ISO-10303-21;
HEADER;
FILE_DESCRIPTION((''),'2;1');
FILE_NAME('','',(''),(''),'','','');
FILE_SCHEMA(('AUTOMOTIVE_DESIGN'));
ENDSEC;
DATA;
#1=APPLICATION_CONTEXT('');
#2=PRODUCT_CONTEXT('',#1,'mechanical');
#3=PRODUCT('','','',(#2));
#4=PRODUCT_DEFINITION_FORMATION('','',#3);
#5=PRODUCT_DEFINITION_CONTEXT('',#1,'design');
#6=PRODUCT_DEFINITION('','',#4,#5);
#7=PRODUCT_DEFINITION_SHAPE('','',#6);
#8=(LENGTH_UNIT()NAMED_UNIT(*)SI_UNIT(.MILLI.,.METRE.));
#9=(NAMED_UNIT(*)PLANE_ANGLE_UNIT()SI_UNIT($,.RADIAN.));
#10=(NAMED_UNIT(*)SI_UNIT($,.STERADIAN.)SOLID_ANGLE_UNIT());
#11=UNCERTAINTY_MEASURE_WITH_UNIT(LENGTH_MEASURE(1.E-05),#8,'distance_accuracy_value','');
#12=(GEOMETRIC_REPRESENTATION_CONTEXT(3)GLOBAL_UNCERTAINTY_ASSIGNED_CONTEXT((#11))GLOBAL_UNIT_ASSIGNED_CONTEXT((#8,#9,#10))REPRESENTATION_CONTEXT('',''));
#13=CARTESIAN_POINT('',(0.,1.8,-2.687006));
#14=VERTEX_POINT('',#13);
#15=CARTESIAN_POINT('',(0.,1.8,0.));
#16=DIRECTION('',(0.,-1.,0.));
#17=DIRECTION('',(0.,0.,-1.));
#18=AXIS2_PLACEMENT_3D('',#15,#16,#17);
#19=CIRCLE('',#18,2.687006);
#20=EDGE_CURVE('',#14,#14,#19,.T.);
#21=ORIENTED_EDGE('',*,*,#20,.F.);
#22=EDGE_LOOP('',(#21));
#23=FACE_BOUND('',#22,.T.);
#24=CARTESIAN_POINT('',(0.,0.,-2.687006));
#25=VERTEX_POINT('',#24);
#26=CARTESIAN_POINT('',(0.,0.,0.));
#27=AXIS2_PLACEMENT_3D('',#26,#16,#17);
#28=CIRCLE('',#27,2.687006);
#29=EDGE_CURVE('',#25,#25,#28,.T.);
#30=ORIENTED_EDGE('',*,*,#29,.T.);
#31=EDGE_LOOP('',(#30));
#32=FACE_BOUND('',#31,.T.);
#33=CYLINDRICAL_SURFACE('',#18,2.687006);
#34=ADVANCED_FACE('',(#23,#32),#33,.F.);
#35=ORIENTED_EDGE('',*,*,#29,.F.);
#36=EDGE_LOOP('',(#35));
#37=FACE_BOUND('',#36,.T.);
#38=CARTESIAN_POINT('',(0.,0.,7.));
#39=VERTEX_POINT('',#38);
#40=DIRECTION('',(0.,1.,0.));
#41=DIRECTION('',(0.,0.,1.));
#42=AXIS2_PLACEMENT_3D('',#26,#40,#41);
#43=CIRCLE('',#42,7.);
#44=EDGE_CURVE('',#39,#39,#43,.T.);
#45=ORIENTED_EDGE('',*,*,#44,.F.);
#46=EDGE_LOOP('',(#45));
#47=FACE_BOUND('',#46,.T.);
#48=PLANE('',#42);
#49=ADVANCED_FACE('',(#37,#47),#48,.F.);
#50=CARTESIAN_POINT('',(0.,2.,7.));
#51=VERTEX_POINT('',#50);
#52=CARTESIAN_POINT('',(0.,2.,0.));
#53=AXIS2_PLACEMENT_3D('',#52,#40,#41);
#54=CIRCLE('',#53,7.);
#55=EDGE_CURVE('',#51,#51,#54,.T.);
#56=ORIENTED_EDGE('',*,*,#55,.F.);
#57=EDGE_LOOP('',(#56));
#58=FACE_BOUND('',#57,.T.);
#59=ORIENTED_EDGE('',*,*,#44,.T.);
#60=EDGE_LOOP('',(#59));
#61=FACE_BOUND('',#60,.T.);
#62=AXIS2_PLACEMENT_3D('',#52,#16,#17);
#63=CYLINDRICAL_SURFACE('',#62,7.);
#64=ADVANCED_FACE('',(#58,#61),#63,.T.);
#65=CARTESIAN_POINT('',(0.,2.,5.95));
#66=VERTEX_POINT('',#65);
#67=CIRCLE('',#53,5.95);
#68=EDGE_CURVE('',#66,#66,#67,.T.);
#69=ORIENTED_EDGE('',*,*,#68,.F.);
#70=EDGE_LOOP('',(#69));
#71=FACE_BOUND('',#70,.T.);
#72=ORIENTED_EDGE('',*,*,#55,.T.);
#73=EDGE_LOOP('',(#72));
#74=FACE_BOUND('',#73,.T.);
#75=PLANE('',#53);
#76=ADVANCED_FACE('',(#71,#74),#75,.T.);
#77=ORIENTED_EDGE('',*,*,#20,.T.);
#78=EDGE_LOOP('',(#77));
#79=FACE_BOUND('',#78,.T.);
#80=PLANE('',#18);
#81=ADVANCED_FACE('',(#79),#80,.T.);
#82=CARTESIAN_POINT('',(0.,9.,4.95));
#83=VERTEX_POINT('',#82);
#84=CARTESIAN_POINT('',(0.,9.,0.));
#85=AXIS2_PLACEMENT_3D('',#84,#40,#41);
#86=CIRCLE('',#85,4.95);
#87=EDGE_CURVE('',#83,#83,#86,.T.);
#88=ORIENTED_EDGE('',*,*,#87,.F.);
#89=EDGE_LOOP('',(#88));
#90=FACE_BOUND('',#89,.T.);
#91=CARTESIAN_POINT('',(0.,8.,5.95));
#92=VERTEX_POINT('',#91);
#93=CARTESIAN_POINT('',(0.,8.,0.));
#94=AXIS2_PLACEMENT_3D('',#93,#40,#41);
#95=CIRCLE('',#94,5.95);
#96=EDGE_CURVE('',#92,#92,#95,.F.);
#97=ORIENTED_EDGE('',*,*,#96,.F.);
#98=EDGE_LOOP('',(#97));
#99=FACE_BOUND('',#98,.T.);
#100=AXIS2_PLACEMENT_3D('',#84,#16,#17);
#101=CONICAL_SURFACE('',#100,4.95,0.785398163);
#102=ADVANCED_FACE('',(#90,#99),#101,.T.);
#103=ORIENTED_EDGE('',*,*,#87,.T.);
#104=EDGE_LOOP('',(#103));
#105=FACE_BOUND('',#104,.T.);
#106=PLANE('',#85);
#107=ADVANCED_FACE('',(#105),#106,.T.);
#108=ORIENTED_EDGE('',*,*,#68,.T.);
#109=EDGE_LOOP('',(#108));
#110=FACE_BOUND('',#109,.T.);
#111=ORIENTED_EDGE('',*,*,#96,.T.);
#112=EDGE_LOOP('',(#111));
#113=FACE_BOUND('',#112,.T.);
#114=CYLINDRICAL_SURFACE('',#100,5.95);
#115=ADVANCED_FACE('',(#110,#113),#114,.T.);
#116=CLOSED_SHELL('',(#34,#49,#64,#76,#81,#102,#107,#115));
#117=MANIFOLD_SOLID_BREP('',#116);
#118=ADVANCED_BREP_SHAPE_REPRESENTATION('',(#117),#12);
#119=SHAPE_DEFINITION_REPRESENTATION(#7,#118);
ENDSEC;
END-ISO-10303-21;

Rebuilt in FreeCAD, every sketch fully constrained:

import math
import FreeCAD as App
import Part
import Sketcher
from FreeCAD import Vector
Q = App.Units.Quantity


def edges_at(feature, points):
    """Names of the edges that pass closest to the given points."""
    edges = feature.Shape.Edges
    near = lambda p: min(range(len(edges)), key=lambda i: edges[i].distToShape(Part.Vertex(*p))[0])
    return sorted({f"Edge{near(p) + 1}" for p in points})

doc = App.newDocument("Part")
params = doc.addObject("Spreadsheet::Sheet", "Params")
for row, (alias, value) in enumerate([
    ("sketch1_diameter", "14 mm"),
    ("pad1_length", "2 mm"),
    ("sketch2_diameter", "11.9 mm"),
    ("pad2_length", "7 mm"),
    ("pocket1_length", "1.8 mm"),
    ("chamfer_size", "1 mm"),
], start=1):
    params.set(f"A{row}", alias)
    params.set(f"B{row}", "=" + value)
    params.setAlias(f"B{row}", alias)

body = doc.addObject("PartDesign::Body", "Body")

# Sketch on XZ plane
sketch1 = body.newObject("Sketcher::SketchObject", "Sketch")
sketch1.AttachmentSupport = (doc.getObject("XZ_Plane"), [""])
sketch1.MapMode = "FlatFace"
sketch1.addGeometry(Part.Circle(Vector(0, 0, 0), Vector(0, 0, 1), 7), False)
sketch1.addConstraint(Sketcher.Constraint("Coincident", 0, 3, -1, 1))
sketch1.addConstraint(Sketcher.Constraint("Diameter", 0, Q("14 mm")))
sketch1.setExpression("Constraints[1]", "Params.sketch1_diameter")
pad1 = body.newObject("PartDesign::Pad", "Pad")
pad1.Profile = sketch1
pad1.setExpression("Length", "Params.pad1_length")
pad1.Reversed = True

# Sketch on XZ plane
sketch2 = body.newObject("Sketcher::SketchObject", "Sketch001")
sketch2.AttachmentSupport = (doc.getObject("XZ_Plane"), [""])
sketch2.MapMode = "FlatFace"
sketch2.AttachmentOffset = App.Placement(Vector(0, 0, -2), App.Rotation())
sketch2.addGeometry(Part.Circle(Vector(0, 0, 0), Vector(0, 0, 1), 6), False)
sketch2.addConstraint(Sketcher.Constraint("Coincident", 0, 3, -1, 1))
sketch2.addConstraint(Sketcher.Constraint("Diameter", 0, Q("11.9 mm")))
sketch2.setExpression("Constraints[1]", "Params.sketch2_diameter")
pad2 = body.newObject("PartDesign::Pad", "Pad001")
pad2.Profile = sketch2
pad2.setExpression("Length", "Params.pad2_length")
pad2.Reversed = True

# Sketch on XZ plane
sketch3 = body.newObject("Sketcher::SketchObject", "Sketch002")
sketch3.AttachmentSupport = (doc.getObject("XZ_Plane"), [""])
sketch3.MapMode = "FlatFace"
sketch3.addGeometry(Part.ArcOfCircle(Part.Circle(Vector(0, 0, 0), Vector(0, 0, 1), 2.7), math.radians(135), math.radians(225)), False)
sketch3.addGeometry(Part.ArcOfCircle(Part.Circle(Vector(0, 0, 0), Vector(0, 0, 1), 2.7), math.radians(-135), math.radians(-45)), False)
sketch3.addGeometry(Part.ArcOfCircle(Part.Circle(Vector(0, 0, 0), Vector(0, 0, 1), 2.7), math.radians(-45), math.radians(0)), False)
sketch3.addGeometry(Part.ArcOfCircle(Part.Circle(Vector(0, 0, 0), Vector(0, 0, 1), 2.7), math.radians(0), math.radians(45)), False)
sketch3.addGeometry(Part.ArcOfCircle(Part.Circle(Vector(0, 0, 0), Vector(0, 0, 1), 2.7), math.radians(45), math.radians(135)), False)
sketch3.addConstraint(Sketcher.Constraint("Tangent", 0, 2, 1, 1))
sketch3.addConstraint(Sketcher.Constraint("Tangent", 1, 2, 2, 1))
sketch3.addConstraint(Sketcher.Constraint("Tangent", 2, 2, 3, 1))
sketch3.addConstraint(Sketcher.Constraint("Tangent", 3, 2, 4, 1))
sketch3.addConstraint(Sketcher.Constraint("Tangent", 4, 2, 0, 1))
sketch3.addConstraint(Sketcher.Constraint("Coincident", 0, 3, -1, 1))
sketch3.addConstraint(Sketcher.Constraint("Coincident", 2, 3, -1, 1))
sketch3.addConstraint(Sketcher.Constraint("PointOnObject", 2, 2, -1))
sketch3.addConstraint(Sketcher.Constraint("Horizontal", 0, 2, 1, 2))
sketch3.addConstraint(Sketcher.Constraint("Horizontal", 3, 2, 4, 2))
sketch3.addConstraint(Sketcher.Constraint("Vertical", 1, 2, 3, 2))
sketch3.addConstraint(Sketcher.Constraint("DistanceX", 0, 2, -1, 1, Q("1.9 mm")))
sketch3.addConstraint(Sketcher.Constraint("DistanceY", 0, 2, -1, 1, Q("1.9 mm")))
pocket1 = body.newObject("PartDesign::Pocket", "Pocket")
pocket1.Profile = sketch3
pocket1.setExpression("Length", "Params.pocket1_length")
doc.recompute()

chamfer = body.newObject("PartDesign::Chamfer", "Chamfer")
chamfer.Base = (pocket1, edges_at(pocket1, [(0, 9, -5.95)]))
chamfer.setExpression("Size", "Params.chamfer_size")

doc.recompute()
